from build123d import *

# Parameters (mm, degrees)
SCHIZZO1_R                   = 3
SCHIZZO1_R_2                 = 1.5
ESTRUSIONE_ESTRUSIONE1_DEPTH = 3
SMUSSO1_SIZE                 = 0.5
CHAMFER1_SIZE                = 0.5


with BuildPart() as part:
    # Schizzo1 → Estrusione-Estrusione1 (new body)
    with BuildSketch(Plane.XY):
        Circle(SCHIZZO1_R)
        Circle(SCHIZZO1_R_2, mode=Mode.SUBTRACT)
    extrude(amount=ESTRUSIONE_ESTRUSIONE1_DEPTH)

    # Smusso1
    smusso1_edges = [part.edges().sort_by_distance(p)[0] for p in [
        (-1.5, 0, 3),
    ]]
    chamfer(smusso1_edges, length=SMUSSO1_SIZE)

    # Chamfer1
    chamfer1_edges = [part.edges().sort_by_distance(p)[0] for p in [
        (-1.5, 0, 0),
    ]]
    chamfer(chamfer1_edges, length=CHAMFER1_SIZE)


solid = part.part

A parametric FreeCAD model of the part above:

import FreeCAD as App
import Part
import Sketcher
from FreeCAD import Vector
Q = App.Units.Quantity


def edges_at(feature, points):
    """Names of the edges that pass closest to the given points."""
    edges = feature.Shape.Edges
    near = lambda p: min(range(len(edges)), key=lambda i: edges[i].distToShape(Part.Vertex(*p))[0])
    return sorted({f"Edge{near(p) + 1}" for p in points})

doc = App.newDocument("Part")
body = doc.addObject("PartDesign::Body", "Body")

# Sketch on XY plane
sketch1 = body.newObject("Sketcher::SketchObject", "Sketch")
sketch1.AttachmentSupport = (doc.getObject("XY_Plane"), [""])
sketch1.MapMode = "FlatFace"
sketch1.addGeometry([
    Part.Circle(Vector(0, 0, 0), Vector(0, 0, 1), 3),
    Part.Circle(Vector(0, 0, 0), Vector(0, 0, 1), 1.5),
], False)
sketch1.addConstraint([
    Sketcher.Constraint("Coincident", 0, 3, -1, 1),
    Sketcher.Constraint("Coincident", 1, 3, -1, 1),
    Sketcher.Constraint("Diameter", 0, Q("6 mm")),
    Sketcher.Constraint("Diameter", 1, Q("3 mm")),
])
pad1 = body.newObject("PartDesign::Pad", "Pad")
pad1.Profile = sketch1
pad1.Length = 3
doc.recompute()

chamfer = body.newObject("PartDesign::Chamfer", "Chamfer")
chamfer.Base = (pad1, edges_at(pad1, [(-1.5, 0, 3)]))
chamfer.Size = 0.5
doc.recompute()

chamfer2 = body.newObject("PartDesign::Chamfer", "Chamfer001")
chamfer2.Base = (chamfer, edges_at(chamfer, [(-1.5, 0, 0)]))
chamfer2.Size = 0.5

doc.recompute()
